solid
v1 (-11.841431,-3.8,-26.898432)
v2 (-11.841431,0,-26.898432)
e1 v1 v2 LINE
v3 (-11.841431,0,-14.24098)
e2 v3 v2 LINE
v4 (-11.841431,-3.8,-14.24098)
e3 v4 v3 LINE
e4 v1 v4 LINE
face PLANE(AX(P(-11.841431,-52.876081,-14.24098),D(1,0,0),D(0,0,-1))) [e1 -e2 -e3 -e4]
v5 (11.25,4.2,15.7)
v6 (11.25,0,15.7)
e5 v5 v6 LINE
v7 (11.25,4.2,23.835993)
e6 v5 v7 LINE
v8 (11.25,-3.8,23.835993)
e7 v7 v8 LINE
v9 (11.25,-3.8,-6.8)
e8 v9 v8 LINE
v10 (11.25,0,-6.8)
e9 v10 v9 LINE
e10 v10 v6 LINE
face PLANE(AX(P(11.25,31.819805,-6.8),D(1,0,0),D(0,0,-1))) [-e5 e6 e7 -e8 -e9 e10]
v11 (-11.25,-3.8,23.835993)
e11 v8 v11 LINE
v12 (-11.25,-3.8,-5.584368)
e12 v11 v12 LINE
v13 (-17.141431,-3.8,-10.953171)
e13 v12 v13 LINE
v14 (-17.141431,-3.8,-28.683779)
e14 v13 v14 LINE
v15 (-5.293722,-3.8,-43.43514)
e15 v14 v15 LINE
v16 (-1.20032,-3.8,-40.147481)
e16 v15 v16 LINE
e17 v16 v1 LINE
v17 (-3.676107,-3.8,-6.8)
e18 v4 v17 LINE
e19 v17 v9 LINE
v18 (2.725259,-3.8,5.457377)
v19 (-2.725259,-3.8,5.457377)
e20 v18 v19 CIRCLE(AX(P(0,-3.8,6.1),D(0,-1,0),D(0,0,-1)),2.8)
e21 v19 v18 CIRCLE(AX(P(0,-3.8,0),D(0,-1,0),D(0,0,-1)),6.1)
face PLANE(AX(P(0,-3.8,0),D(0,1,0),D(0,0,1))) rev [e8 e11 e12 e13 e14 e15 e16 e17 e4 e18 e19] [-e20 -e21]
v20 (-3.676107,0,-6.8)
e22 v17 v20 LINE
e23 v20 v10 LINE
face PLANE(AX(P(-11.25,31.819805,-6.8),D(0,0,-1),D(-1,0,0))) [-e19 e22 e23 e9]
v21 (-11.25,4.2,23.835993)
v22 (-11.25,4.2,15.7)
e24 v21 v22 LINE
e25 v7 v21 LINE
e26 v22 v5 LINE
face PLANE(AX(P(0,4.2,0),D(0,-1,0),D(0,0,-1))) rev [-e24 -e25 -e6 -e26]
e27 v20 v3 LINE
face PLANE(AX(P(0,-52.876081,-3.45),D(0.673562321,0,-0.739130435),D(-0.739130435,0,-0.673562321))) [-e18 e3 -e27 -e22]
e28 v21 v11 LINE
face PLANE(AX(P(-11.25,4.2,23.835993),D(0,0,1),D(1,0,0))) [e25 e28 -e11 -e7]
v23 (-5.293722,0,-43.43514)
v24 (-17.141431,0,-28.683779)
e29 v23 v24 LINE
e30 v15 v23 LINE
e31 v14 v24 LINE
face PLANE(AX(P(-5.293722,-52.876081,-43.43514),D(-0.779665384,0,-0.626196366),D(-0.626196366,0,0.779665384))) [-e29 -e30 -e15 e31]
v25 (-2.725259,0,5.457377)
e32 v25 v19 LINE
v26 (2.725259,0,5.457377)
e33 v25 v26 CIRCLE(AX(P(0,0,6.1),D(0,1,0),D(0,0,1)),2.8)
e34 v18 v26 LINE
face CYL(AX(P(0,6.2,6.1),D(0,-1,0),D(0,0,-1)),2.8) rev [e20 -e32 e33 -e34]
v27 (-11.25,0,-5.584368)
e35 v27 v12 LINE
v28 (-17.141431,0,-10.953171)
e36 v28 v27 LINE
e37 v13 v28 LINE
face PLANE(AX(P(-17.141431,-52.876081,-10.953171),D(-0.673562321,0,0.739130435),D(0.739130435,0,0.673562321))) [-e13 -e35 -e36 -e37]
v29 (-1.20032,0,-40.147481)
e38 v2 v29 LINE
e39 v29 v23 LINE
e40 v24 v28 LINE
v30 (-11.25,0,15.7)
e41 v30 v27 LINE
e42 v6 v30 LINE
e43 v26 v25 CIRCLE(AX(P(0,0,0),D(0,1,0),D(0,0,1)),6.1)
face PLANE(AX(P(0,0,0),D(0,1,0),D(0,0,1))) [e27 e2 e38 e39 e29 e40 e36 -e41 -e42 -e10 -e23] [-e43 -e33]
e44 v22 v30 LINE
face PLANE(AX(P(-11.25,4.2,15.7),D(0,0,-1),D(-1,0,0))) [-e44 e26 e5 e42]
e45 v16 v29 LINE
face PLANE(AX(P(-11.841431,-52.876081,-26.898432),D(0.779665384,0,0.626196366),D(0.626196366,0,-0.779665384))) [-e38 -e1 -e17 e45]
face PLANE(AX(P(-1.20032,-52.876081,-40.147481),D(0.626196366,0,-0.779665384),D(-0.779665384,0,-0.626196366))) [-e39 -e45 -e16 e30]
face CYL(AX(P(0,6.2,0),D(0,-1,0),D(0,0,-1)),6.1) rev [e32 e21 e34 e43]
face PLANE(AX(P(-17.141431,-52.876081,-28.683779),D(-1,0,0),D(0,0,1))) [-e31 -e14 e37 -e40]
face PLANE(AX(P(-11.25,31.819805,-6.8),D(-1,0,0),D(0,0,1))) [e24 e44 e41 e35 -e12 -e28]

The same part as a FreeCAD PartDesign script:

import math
import FreeCAD as App
import Part
import Sketcher
from FreeCAD import Vector
Q = App.Units.Quantity


def add_polygon(sketch, points):
    """Adds a closed chain of lines whose ends are joined by coincident constraints."""
    first, n = sketch.GeometryCount, len(points)
    for a, b in zip(points, points[1:] + points[:1]):
        sketch.addGeometry(Part.LineSegment(App.Vector(*a, 0), App.Vector(*b, 0)), False)
    for i in range(n):
        sketch.addConstraint(Sketcher.Constraint("Coincident", first + i, 2, first + (i + 1) % n, 1))

doc = App.newDocument("Part")
body = doc.addObject("PartDesign::Body", "Body")

# Sketch on XZ plane
sketch1 = body.newObject("Sketcher::SketchObject", "Sketch")
sketch1.AttachmentSupport = (doc.getObject("XZ_Plane"), [""])
sketch1.MapMode = "FlatFace"
sketch1.addGeometry([
    Part.LineSegment(Vector(-2.2, -2.6, 0), Vector(-14.2, -2, 0)),
    Part.ArcOfCircle(Part.Circle(Vector(-14.1, 0, 0), Vector(0, 0, 1), 2), math.radians(93), math.radians(267)),
    Part.LineSegment(Vector(-14.2, 2, 0), Vector(-2.2, 2.6, 0)),
    Part.ArcOfCircle(Part.Circle(Vector(0, 0, 0), Vector(0, 0, 1), 3.5), math.radians(-130), math.radians(130)),
], False)
sketch1.addConstraint([
    Sketcher.Constraint("Tangent", 0, 2, 1, 2),
    Sketcher.Constraint("Tangent", 1, 1, 2, 1),
    Sketcher.Constraint("Coincident", 2, 2, 3, 2),
    Sketcher.Constraint("Coincident", 3, 1, 0, 1),
    Sketcher.Constraint("Coincident", 3, 3, -1, 1),
    Sketcher.Constraint("Symmetric", 0, 2, 1, 1, -1),
    Sketcher.Constraint("Radius", 1, Q("2 mm")),
    Sketcher.Constraint("Radius", 3, Q("3.45 mm")),
    Sketcher.Constraint("DistanceY", 3, 1, 2, 2, Q("5.3 mm")),
    Sketcher.Constraint("DistanceX", 1, 3, -1, 1, Q("14.05 mm")),
])
pad1 = body.newObject("PartDesign::Pad", "Pad")
pad1.Profile = sketch1
pad1.Length = 1.4

# Sketch on XZ plane
sketch2 = body.newObject("Sketcher::SketchObject", "Sketch001")
sketch2.AttachmentSupport = (doc.getObject("XZ_Plane"), [""])
sketch2.MapMode = "FlatFace"
sketch2.AttachmentOffset = App.Placement(Vector(0, 0, 1.4), App.Rotation())
sketch2.addGeometry(Part.Circle(Vector(0, 0, 0), Vector(0, 0, 1), 3.5), False)
sketch2.addConstraint([
    Sketcher.Constraint("Coincident", 0, 3, -1, 1),
    Sketcher.Constraint("Diameter", 0, Q("6.9 mm")),
])
pad2 = body.newObject("PartDesign::Pad", "Pad001")
pad2.Profile = sketch2
pad2.Length = 2.4

# Sketch on XZ plane
sketch3 = body.newObject("Sketcher::SketchObject", "Sketch002")
sketch3.AttachmentSupport = (doc.getObject("XZ_Plane"), [""])
sketch3.MapMode = "FlatFace"
sketch3.addGeometry(Part.Circle(Vector(-14.4, 0, 0), Vector(0, 0, 1), 0.6), False)
sketch3.addConstraint([
    Sketcher.Constraint("PointOnObject", 0, 3, -1),
    Sketcher.Constraint("Diameter", 0, Q("1.2 mm")),
    Sketcher.Constraint("DistanceX", 0, 3, -1, 1, Q("14.45 mm")),
])
doc.recompute()
hole = body.newObject("PartDesign::Hole", "Hole")
hole.Profile = sketch3
hole.ThreadType = "None"
hole.Diameter = 1.2
hole.DepthType = "ThroughAll"
hole.Reversed = True
doc.recompute()

linearpattern = body.newObject("PartDesign::LinearPattern", "LinearPattern")
linearpattern.Originals = [hole]
linearpattern.Direction = (doc.getObject("X_Axis"), [""])
linearpattern.Mode = "offset"
linearpattern.Offset = 2
linearpattern.Occurrences = 6
body.Tip = linearpattern

# Sketch on XZ plane
sketch4 = body.newObject("Sketcher::SketchObject", "Sketch003")
sketch4.AttachmentSupport = (doc.getObject("XZ_Plane"), [""])
sketch4.MapMode = "FlatFace"
sketch4.AttachmentOffset = App.Placement(Vector(0, 0, 3.8), App.Rotation())
sketch4.addGeometry(Part.Circle(Vector(0, 0, 0), Vector(0, 0, 1), 2.5), False)
sketch4.addConstraint([
    Sketcher.Constraint("Coincident", 0, 3, -1, 1),
    Sketcher.Constraint("Diameter", 0, Q("4.95 mm")),
])
doc.recompute()
hole2 = body.newObject("PartDesign::Hole", "Hole001")
hole2.Profile = sketch4
hole2.ThreadType = "None"
hole2.Diameter = 4.95
hole2.DepthType = "Dimension"
hole2.Depth = 2
hole2.DrillPoint = "Flat"

# Sketch on XZ plane
sketch5 = body.newObject("Sketcher::SketchObject", "Sketch004")
sketch5.AttachmentSupport = (doc.getObject("XZ_Plane"), [""])
sketch5.MapMode = "FlatFace"
sketch5.addGeometry(Part.Circle(Vector(0, 0, 0), Vector(0, 0, 1), 2.3), False)
sketch5.addConstraint([
    Sketcher.Constraint("Coincident", 0, 3, -1, 1),
    Sketcher.Constraint("Diameter", 0, Q("4.6 mm")),
])
doc.recompute()
hole3 = body.newObject("PartDesign::Hole", "Hole002")
hole3.Profile = sketch5
hole3.ThreadType = "None"
hole3.Diameter = 4.6
hole3.DepthType = "Dimension"
hole3.Depth = 1
hole3.DrillPoint = "Flat"
hole3.Reversed = True

# Sketch on XZ plane
sketch6 = body.newObject("Sketcher::SketchObject", "Sketch005")
sketch6.AttachmentSupport = (doc.getObject("XZ_Plane"), [""])
sketch6.MapMode = "FlatFace"
sketch6.addGeometry(Part.Circle(Vector(0, 0, 0), Vector(0, 0, 1), 1.1), False)
sketch6.addConstraint([
    Sketcher.Constraint("Coincident", 0, 3, -1, 1),
    Sketcher.Constraint("Diameter", 0, Q("2.1 mm")),
])
doc.recompute()
hole4 = body.newObject("PartDesign::Hole", "Hole003")
hole4.Profile = sketch6
hole4.ThreadType = "None"
hole4.Diameter = 2.1
hole4.DepthType = "ThroughAll"
hole4.Reversed = True

# Sketch on XZ plane
sketch7 = body.newObject("Sketcher::SketchObject", "Sketch006")
sketch7.AttachmentSupport = (doc.getObject("XZ_Plane"), [""])
sketch7.MapMode = "FlatFace"
sketch7.AttachmentOffset = App.Placement(Vector(0, 0, 3.8), App.Rotation())
sketch7.addGeometry([
    Part.LineSegment(Vector(-0.1, 2.47, 0), Vector(0, 2.38, 0)),
    Part.LineSegment(Vector(0, 2.38, 0), Vector(0.1, 2.47, 0)),
    Part.ArcOfCircle(Part.Circle(Vector(0, 0, 0), Vector(0, 0, 1), 2.48), math.radians(87.73), math.radians(92.27)),
], False)
sketch7.addConstraint([
    Sketcher.Constraint("Coincident", 0, 2, 1, 1),
    Sketcher.Constraint("Coincident", 1, 2, 2, 1),
    Sketcher.Constraint("Coincident", 2, 2, 0, 1),
    Sketcher.Constraint("Coincident", 2, 3, -1, 1),
    Sketcher.Constraint("PointOnObject", 0, 2, -2),
    Sketcher.Constraint("Perpendicular", 0, 1),
    Sketcher.Constraint("Horizontal", 1, 2, 2, 2),
    Sketcher.Constraint("Radius", 2, Q("2.475 mm")),
    Sketcher.Constraint("DistanceY", -1, 1, 0, 2, Q("2.375 mm")),
])
pad3 = body.newObject("PartDesign::Pad", "Pad002")
pad3.Profile = sketch7
pad3.Length = 2
pad3.Reversed = True
doc.recompute()

polarpattern = body.newObject("PartDesign::PolarPattern", "PolarPattern")
polarpattern.Originals = [pad3]
polarpattern.Axis = (doc.getObject("Y_Axis"), [""])
polarpattern.Angle = 360
polarpattern.Occurrences = 60
body.Tip = polarpattern

# Sketch on XZ plane
sketch8 = body.newObject("Sketcher::SketchObject", "Sketch007")
sketch8.AttachmentSupport = (doc.getObject("XZ_Plane"), [""])
sketch8.MapMode = "FlatFace"
sketch8.AttachmentOffset = App.Placement(Vector(0, 0, 3.8), App.Rotation())
sketch8.addGeometry([
    Part.LineSegment(Vector(0, 3.5, 0), Vector(-16.1, 3.5, 0)),
    Part.LineSegment(Vector(-16.1, 3.5, 0), Vector(-16.1, -3.5, 0)),
    Part.LineSegment(Vector(-16.1, -3.5, 0), Vector(0, -3.5, 0)),
    Part.ArcOfCircle(Part.Circle(Vector(0, 0, 0), Vector(0, 0, 1), 3.5), math.radians(90), math.radians(270)),
], False)
sketch8.addConstraint([
    Sketcher.Constraint("Coincident", 0, 2, 1, 1),
    Sketcher.Constraint("Coincident", 1, 2, 2, 1),
    Sketcher.Constraint("Tangent", 2, 2, 3, 2),
    Sketcher.Constraint("Tangent", 3, 1, 0, 1),
    Sketcher.Constraint("Horizontal", 0),
    Sketcher.Constraint("Vertical", 1),
    Sketcher.Constraint("Horizontal", 2),
    Sketcher.Constraint("Coincident", 3, 3, -1, 1),
    Sketcher.Constraint("Radius", 3, Q("3.45 mm")),
    Sketcher.Constraint("DistanceX", 0, 2, 0, 1, Q("16.05 mm")),
])
pocket1 = body.newObject("PartDesign::Pocket", "Pocket")
pocket1.Profile = sketch8
pocket1.Length = 10

# Sketch on XZ plane
sketch9 = body.newObject("Sketcher::SketchObject", "Sketch008")
sketch9.AttachmentSupport = (doc.getObject("XZ_Plane"), [""])
sketch9.MapMode = "FlatFace"
sketch9.addGeometry([
    Part.LineSegment(Vector(0, -3.5, 0), Vector(-11.8, -14.2, 0)),  # 0
    Part.LineSegment(Vector(-11.8, -14.2, 0), Vector(-11.8, -26.9, 0)),  # 1
    Part.LineSegment(Vector(-11.8, -26.9, 0), Vector(-1.2, -40.1, 0)),  # 2
    Part.LineSegment(Vector(-1.2, -40.1, 0), Vector(-5.3, -43.4, 0)),  # 3
    Part.LineSegment(Vector(-5.3, -43.4, 0), Vector(-17.1, -28.7, 0)),  # 4
    Part.LineSegment(Vector(-17.1, -28.7, 0), Vector(-17.1, -11, 0)),  # 5
    Part.LineSegment(Vector(-17.1, -11, 0), Vector(-2.3, 2.5, 0)),  # 6
    Part.ArcOfCircle(Part.Circle(Vector(0, 0, 0), Vector(0, 0, 1), 3.5), math.radians(132), math.radians(270)),  # 7
], False)
sketch9.addConstraint([
    Sketcher.Constraint("Coincident", 0, 2, 1, 1),
    Sketcher.Constraint("Coincident", 1, 2, 2, 1),
    Sketcher.Constraint("Coincident", 2, 2, 3, 1),
    Sketcher.Constraint("Coincident", 3, 2, 4, 1),
    Sketcher.Constraint("Coincident", 4, 2, 5, 1),
    Sketcher.Constraint("Coincident", 5, 2, 6, 1),
    Sketcher.Constraint("Tangent", 6, 2, 7, 1),
    Sketcher.Constraint("Coincident", 7, 2, 0, 1),
    Sketcher.Constraint("Vertical", 1),
    Sketcher.Constraint("Vertical", 5),
    Sketcher.Constraint("Coincident", 7, 3, -1, 1),
    Sketcher.Constraint("PointOnObject", 7, 2, -2),
    Sketcher.Constraint("Perpendicular", 2, 3),
    Sketcher.Constraint("Perpendicular", 3, 4),
    Sketcher.Constraint("Parallel", 0, 6),
    Sketcher.Constraint("Radius", 7, Q("3.45 mm")),
    Sketcher.Constraint("DistanceY", 7, 2, 6, 2, Q("6 mm")),
    Sketcher.Constraint("DistanceX", 4, 2, 1, 2, Q("5.3 mm")),
    Sketcher.Constraint("DistanceY", 1, 2, 1, 1, Q("12.657451 mm")),
    Sketcher.Constraint("DistanceY", 2, 2, 0, 2, Q("25.906501 mm")),
    Sketcher.Constraint("DistanceY", 4, 2, 0, 2, Q("14.442799 mm")),
    Sketcher.Constraint("Distance", 0, Q("16.02076 mm")),
    Sketcher.Constraint("Distance", 2, Q("16.99325 mm")),
])
pad4 = body.newObject("PartDesign::Pad", "Pad003")
pad4.Profile = sketch9
pad4.Length = 3.8

# Sketch on XZ plane
sketch10 = body.newObject("Sketcher::SketchObject", "Sketch009")
sketch10.AttachmentSupport = (doc.getObject("XZ_Plane"), [""])
sketch10.MapMode = "FlatFace"
sketch10.AttachmentOffset = App.Placement(Vector(0, 0, 3.8), App.Rotation())
add_polygon(sketch10, [(-11, 16), (-11, -7), (11, -7), (11, 16)])  # lines 0-3
sketch10.addConstraint([
    Sketcher.Constraint("Vertical", 0),
    Sketcher.Constraint("Horizontal", 1),
    Sketcher.Constraint("Vertical", 2),
    Sketcher.Constraint("Horizontal", 3),
    Sketcher.Constraint("Equal", 3, 0),
    Sketcher.Constraint("DistanceX", 1, 1, 1, 2, Q("22.5 mm")),
    Sketcher.Constraint("DistanceY", 0, 2, -1, 1, Q("6.8 mm")),
    Sketcher.Constraint("DistanceX", 0, 2, -1, 1, Q("11.25 mm")),
])
pad5 = body.newObject("PartDesign::Pad", "Pad004")
pad5.Profile = sketch10
pad5.Length = 3.8
pad5.Reversed = True

# Sketch on XZ plane
sketch11 = body.newObject("Sketcher::SketchObject", "Sketch010")
sketch11.AttachmentSupport = (doc.getObject("XZ_Plane"), [""])
sketch11.MapMode = "FlatFace"
sketch11.AttachmentOffset = App.Placement(Vector(0, 0, 3.8), App.Rotation())
sketch11.addGeometry([
    Part.ArcOfCircle(Part.Circle(Vector(0, 0, 0), Vector(0, 0, 1), 6.1), math.radians(117), math.radians(423)),
    Part.ArcOfCircle(Part.Circle(Vector(0, 6.1, 0), Vector(0, 0, 1), 2.8), math.radians(-13), math.radians(193)),
], False)
sketch11.addConstraint([
    Sketcher.Constraint("Coincident", 0, 1, 1, 2),
    Sketcher.Constraint("Coincident", 1, 1, 0, 2),
    Sketcher.Constraint("Coincident", 0, 3, -1, 1),
    Sketcher.Constraint("PointOnObject", 1, 3, -2),
    Sketcher.Constraint("Radius", 0, Q("6.1 mm")),
    Sketcher.Constraint("Radius", 1, Q("2.8 mm")),
    Sketcher.Constraint("DistanceY", -1, 1, 1, 3, Q("6.1 mm")),
])
pocket2 = body.newObject("PartDesign::Pocket", "Pocket001")
pocket2.Profile = sketch11
pocket2.Length = 10

# Sketch on XZ plane
sketch12 = body.newObject("Sketcher::SketchObject", "Sketch011")
sketch12.AttachmentSupport = (doc.getObject("XZ_Plane"), [""])
sketch12.MapMode = "FlatFace"
sketch12.AttachmentOffset = App.Placement(Vector(0, 0, 3.8), App.Rotation())
add_polygon(sketch12, [(-11, 24), (-11, 16), (11, 16), (11, 24)])  # lines 0-3
sketch12.addConstraint([
    Sketcher.Constraint("Vertical", 0),
    Sketcher.Constraint("Horizontal", 1),
    Sketcher.Constraint("Vertical", 2),
    Sketcher.Constraint("Horizontal", 3),
    Sketcher.Constraint("DistanceX", 1, 1, 1, 2, Q("22.5 mm")),
    Sketcher.Constraint("DistanceY", -1, 1, 0, 2, Q("15.7 mm")),
    Sketcher.Constraint("DistanceX", 0, 2, -1, 1, Q("11.25 mm")),
    Sketcher.Constraint("DistanceY", 0, 2, 0, 1, Q("8.135993 mm")),
])
pad6 = body.newObject("PartDesign::Pad", "Pad005")
pad6.Profile = sketch12
pad6.Length = 8
pad6.Reversed = True

doc.recompute()
